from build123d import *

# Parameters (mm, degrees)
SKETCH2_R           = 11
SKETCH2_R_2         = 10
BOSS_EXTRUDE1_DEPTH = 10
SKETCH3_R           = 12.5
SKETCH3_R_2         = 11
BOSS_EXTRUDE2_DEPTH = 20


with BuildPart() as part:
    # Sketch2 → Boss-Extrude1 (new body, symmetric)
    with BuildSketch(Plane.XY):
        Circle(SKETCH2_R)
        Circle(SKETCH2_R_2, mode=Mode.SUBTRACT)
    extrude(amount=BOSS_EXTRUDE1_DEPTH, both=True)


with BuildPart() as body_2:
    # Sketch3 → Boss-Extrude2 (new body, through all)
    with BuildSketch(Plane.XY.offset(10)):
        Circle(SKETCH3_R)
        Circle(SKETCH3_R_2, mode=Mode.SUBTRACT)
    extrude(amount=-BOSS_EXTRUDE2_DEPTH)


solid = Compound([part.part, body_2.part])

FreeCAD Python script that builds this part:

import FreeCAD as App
import Part
import Sketcher

doc = App.newDocument("Part")
params = doc.addObject("Spreadsheet::Sheet", "Params")
for row, (alias, value) in enumerate([
    ("sketch1_diameter", "22 mm"),
    ("sketch1_diameter2", "20 mm"),
    ("pad1_length", "20 mm"),
    ("sketch2_diameter", "25 mm"),
    ("sketch2_diameter2", "22 mm"),
    ("pad2_length", "20 mm"),
], start=1):
    params.set(f"A{row}", alias)
    params.set(f"B{row}", "=" + value)
    params.setAlias(f"B{row}", alias)

body = doc.addObject("PartDesign::Body", "Body")

# Sketch on XY plane
sketch1 = body.newObject("Sketcher::SketchObject", "Sketch")
sketch1.AttachmentSupport = (doc.getObject("XY_Plane"), [""])
sketch1.MapMode = "FlatFace"
sketch1.addGeometry([
    Part.Circle(App.Vector(0, 0, 0), App.Vector(0, 0, 1), 11),
    Part.Circle(App.Vector(0, 0, 0), App.Vector(0, 0, 1), 10),
], False)
sketch1.addConstraint([
    Sketcher.Constraint("Coincident", 0, 3, -1, 1),
    Sketcher.Constraint("Coincident", 1, 3, -1, 1),
    Sketcher.Constraint("Diameter", 0, 22.0),
    Sketcher.Constraint("Diameter", 1, 20.0),
])
sketch1.setExpression("Constraints[2]", "Params.sketch1_diameter")
sketch1.setExpression("Constraints[3]", "Params.sketch1_diameter2")
pad1 = body.newObject("PartDesign::Pad", "Pad")
pad1.Profile = sketch1
pad1.setExpression("Length", "Params.pad1_length")
pad1.Midplane = True
body2 = doc.addObject("PartDesign::Body", "Body001")

# Sketch on XY plane
sketch2 = body2.newObject("Sketcher::SketchObject", "Sketch001")
sketch2.AttachmentSupport = (doc.getObject("XY_Plane001"), [""])
sketch2.MapMode = "FlatFace"
sketch2.AttachmentOffset = App.Placement(App.Vector(0, 0, 10), App.Rotation())
sketch2.addGeometry([
    Part.Circle(App.Vector(0, 0, 0), App.Vector(0, 0, 1), 12),
    Part.Circle(App.Vector(0, 0, 0), App.Vector(0, 0, 1), 11),
], False)
sketch2.addConstraint([
    Sketcher.Constraint("Coincident", 0, 3, -1, 1),
    Sketcher.Constraint("Coincident", 1, 3, -1, 1),
    Sketcher.Constraint("Diameter", 0, 25.0),
    Sketcher.Constraint("Diameter", 1, 22.0),
])
sketch2.setExpression("Constraints[2]", "Params.sketch2_diameter")
sketch2.setExpression("Constraints[3]", "Params.sketch2_diameter2")
pad2 = body2.newObject("PartDesign::Pad", "Pad001")
pad2.Profile = sketch2
pad2.setExpression("Length", "Params.pad2_length")
pad2.Reversed = True

doc.recompute()
